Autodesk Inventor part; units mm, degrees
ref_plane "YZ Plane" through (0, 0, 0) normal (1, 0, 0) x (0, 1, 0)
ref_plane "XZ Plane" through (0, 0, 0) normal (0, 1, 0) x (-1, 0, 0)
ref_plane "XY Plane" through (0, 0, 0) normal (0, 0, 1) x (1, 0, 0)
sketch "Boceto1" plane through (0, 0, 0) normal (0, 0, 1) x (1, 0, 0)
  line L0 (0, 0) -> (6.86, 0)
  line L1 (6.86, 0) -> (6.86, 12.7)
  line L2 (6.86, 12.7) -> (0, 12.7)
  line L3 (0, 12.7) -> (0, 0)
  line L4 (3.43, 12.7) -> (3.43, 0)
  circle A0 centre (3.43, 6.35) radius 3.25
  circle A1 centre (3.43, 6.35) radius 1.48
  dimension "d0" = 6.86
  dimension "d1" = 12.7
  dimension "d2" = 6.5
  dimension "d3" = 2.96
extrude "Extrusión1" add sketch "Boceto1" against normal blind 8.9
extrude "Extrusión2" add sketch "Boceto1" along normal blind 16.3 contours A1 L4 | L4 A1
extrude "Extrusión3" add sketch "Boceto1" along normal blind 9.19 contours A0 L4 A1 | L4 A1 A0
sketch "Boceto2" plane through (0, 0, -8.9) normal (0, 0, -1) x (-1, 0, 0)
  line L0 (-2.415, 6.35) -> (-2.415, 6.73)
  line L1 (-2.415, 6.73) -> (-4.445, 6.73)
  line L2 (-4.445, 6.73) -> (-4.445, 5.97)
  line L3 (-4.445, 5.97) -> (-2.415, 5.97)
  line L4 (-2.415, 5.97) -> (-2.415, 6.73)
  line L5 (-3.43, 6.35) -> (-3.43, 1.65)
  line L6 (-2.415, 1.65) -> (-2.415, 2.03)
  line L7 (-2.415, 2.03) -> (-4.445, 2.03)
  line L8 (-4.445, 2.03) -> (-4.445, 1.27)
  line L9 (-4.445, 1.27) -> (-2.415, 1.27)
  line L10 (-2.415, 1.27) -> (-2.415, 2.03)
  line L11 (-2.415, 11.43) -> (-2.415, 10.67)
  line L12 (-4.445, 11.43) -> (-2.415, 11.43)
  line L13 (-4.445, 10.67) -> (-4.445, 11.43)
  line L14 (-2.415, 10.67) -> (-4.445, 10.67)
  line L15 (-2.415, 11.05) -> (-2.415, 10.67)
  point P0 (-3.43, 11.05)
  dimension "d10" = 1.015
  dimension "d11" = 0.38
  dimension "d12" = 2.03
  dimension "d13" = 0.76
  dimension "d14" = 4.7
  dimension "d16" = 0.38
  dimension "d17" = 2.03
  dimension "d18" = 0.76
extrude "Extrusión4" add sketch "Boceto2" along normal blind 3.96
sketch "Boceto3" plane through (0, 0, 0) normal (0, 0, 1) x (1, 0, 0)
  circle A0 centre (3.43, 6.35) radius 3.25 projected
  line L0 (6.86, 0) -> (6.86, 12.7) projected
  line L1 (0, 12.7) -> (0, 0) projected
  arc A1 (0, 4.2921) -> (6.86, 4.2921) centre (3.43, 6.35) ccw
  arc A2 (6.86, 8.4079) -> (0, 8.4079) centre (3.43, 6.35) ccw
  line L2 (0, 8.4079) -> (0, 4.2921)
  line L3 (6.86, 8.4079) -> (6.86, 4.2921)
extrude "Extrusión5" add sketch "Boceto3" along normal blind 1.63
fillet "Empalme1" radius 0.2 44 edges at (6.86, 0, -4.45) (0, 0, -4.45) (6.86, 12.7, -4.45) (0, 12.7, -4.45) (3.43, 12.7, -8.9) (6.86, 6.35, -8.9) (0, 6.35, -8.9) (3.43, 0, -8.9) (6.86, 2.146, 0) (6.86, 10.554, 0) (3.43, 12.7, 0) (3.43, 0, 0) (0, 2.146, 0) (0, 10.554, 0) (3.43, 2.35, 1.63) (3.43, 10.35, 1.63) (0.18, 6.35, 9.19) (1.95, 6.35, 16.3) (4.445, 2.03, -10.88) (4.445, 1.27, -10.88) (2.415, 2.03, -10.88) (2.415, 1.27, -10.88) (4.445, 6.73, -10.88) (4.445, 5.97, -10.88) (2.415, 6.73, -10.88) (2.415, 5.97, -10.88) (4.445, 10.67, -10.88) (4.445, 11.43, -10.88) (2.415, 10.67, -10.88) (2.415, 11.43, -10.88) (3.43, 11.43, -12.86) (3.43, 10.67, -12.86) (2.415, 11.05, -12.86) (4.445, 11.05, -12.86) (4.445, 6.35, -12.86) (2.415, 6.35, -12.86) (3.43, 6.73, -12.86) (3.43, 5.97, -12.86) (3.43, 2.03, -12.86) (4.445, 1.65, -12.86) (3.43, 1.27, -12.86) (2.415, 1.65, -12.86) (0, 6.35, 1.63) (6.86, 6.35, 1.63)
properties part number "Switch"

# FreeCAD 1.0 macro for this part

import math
import FreeCAD as App
import Part
import Sketcher
from FreeCAD import Vector


def edges_at(feature, points):
    """Names of the edges that pass closest to the given points."""
    edges = feature.Shape.Edges
    near = lambda p: min(range(len(edges)), key=lambda i: edges[i].distToShape(Part.Vertex(*p))[0])
    return sorted({f"Edge{near(p) + 1}" for p in points})

doc = App.newDocument("Part")
body = doc.addObject("PartDesign::Body", "Body")

sketch1 = doc.addObject("Sketcher::SketchObject", "Sketch")
body.addObject(sketch1)
sketch1.AttachmentSupport = (doc.XY_Plane, [""])
sketch1.MapMode = "FlatFace"
sketch1.addGeometry(Part.LineSegment(Vector(0, 13, 0), Vector(0, 0, 0)), False)
sketch1.addGeometry(Part.LineSegment(Vector(0, 0, 0), Vector(7, 0, 0)), False)
sketch1.addGeometry(Part.LineSegment(Vector(7, 0, 0), Vector(7, 13, 0)), False)
sketch1.addGeometry(Part.LineSegment(Vector(7, 13, 0), Vector(0, 13, 0)), False)
sketch1.addConstraint(Sketcher.Constraint("Coincident", 0, 2, 1, 1))
sketch1.addConstraint(Sketcher.Constraint("Coincident", 1, 2, 2, 1))
sketch1.addConstraint(Sketcher.Constraint("Coincident", 2, 2, 3, 1))
sketch1.addConstraint(Sketcher.Constraint("Coincident", 3, 2, 0, 1))
sketch1.addConstraint(Sketcher.Constraint("Vertical", 0))
sketch1.addConstraint(Sketcher.Constraint("Horizontal", 1))
sketch1.addConstraint(Sketcher.Constraint("Vertical", 2))
sketch1.addConstraint(Sketcher.Constraint("Horizontal", 3))
sketch1.addConstraint(Sketcher.Constraint("Coincident", 0, 2, -1, 1))
sketch1.addConstraint(Sketcher.Constraint("DistanceY", 0, 2, 0, 1, 12.7))
sketch1.addConstraint(Sketcher.Constraint("DistanceX", 1, 1, 1, 2, 6.86))
pad1 = doc.addObject("PartDesign::Pad", "Pad")
body.addObject(pad1)
pad1.Profile = sketch1
pad1.Length = 8.9
pad1.Reversed = True

sketch2 = doc.addObject("Sketcher::SketchObject", "Sketch001")
body.addObject(sketch2)
sketch2.AttachmentSupport = (doc.XY_Plane, [""])
sketch2.MapMode = "FlatFace"
sketch2.addGeometry(Part.Circle(Vector(3.4, 6.3, 0), Vector(0, 0, 1), 1.5), False)
sketch2.addConstraint(Sketcher.Constraint("Diameter", 0, 2.96))
sketch2.addConstraint(Sketcher.Constraint("DistanceX", -1, 1, 0, 3, 3.43))
sketch2.addConstraint(Sketcher.Constraint("DistanceY", -1, 1, 0, 3, 6.35))
pad2 = doc.addObject("PartDesign::Pad", "Pad001")
body.addObject(pad2)
pad2.Profile = sketch2
pad2.Length = 16.3

sketch3 = doc.addObject("Sketcher::SketchObject", "Sketch002")
body.addObject(sketch3)
sketch3.AttachmentSupport = (doc.XY_Plane, [""])
sketch3.MapMode = "FlatFace"
sketch3.addGeometry(Part.Circle(Vector(3.4, 6.3, 0), Vector(0, 0, 1), 3.2), False)
sketch3.addGeometry(Part.Circle(Vector(3.4, 6.3, 0), Vector(0, 0, 1), 1.5), False)
sketch3.addConstraint(Sketcher.Constraint("Coincident", 1, 3, 0, 3))
sketch3.addConstraint(Sketcher.Constraint("Diameter", 0, 6.5))
sketch3.addConstraint(Sketcher.Constraint("Diameter", 1, 2.96))
sketch3.addConstraint(Sketcher.Constraint("DistanceX", -1, 1, 0, 3, 3.43))
sketch3.addConstraint(Sketcher.Constraint("DistanceY", -1, 1, 0, 3, 6.35))
pad3 = doc.addObject("PartDesign::Pad", "Pad002")
body.addObject(pad3)
pad3.Profile = sketch3
pad3.Length = 9.19

sketch4 = doc.addObject("Sketcher::SketchObject", "Sketch003")
body.addObject(sketch4)
sketch4.AttachmentSupport = (doc.XY_Plane, [""])
sketch4.MapMode = "FlatFace"
sketch4.AttachmentOffset = App.Placement(Vector(0, 0, -8.9), App.Rotation())
sketch4.addGeometry(Part.LineSegment(Vector(2.4, 6, 0), Vector(2.4, 6.7, 0)), False)
sketch4.addGeometry(Part.LineSegment(Vector(2.4, 6.7, 0), Vector(4.4, 6.7, 0)), False)
sketch4.addGeometry(Part.LineSegment(Vector(4.4, 6.7, 0), Vector(4.4, 6, 0)), False)
sketch4.addGeometry(Part.LineSegment(Vector(4.4, 6, 0), Vector(2.4, 6, 0)), False)
sketch4.addGeometry(Part.LineSegment(Vector(2.4, 2, 0), Vector(4.4, 2, 0)), False)
sketch4.addGeometry(Part.LineSegment(Vector(4.4, 2, 0), Vector(4.4, 1.3, 0)), False)
sketch4.addGeometry(Part.LineSegment(Vector(4.4, 1.3, 0), Vector(2.4, 1.3, 0)), False)
sketch4.addGeometry(Part.LineSegment(Vector(2.4, 1.3, 0), Vector(2.4, 2, 0)), False)
sketch4.addGeometry(Part.LineSegment(Vector(2.4, 10.7, 0), Vector(2.4, 11.4, 0)), False)
sketch4.addGeometry(Part.LineSegment(Vector(2.4, 11.4, 0), Vector(4.4, 11.4, 0)), False)
sketch4.addGeometry(Part.LineSegment(Vector(4.4, 11.4, 0), Vector(4.4, 10.7, 0)), False)
sketch4.addGeometry(Part.LineSegment(Vector(4.4, 10.7, 0), Vector(2.4, 10.7, 0)), False)
sketch4.addConstraint(Sketcher.Constraint("Coincident", 0, 2, 1, 1))
sketch4.addConstraint(Sketcher.Constraint("Coincident", 1, 2, 2, 1))
sketch4.addConstraint(Sketcher.Constraint("Coincident", 2, 2, 3, 1))
sketch4.addConstraint(Sketcher.Constraint("Coincident", 3, 2, 0, 1))
sketch4.addConstraint(Sketcher.Constraint("Coincident", 4, 2, 5, 1))
sketch4.addConstraint(Sketcher.Constraint("Coincident", 5, 2, 6, 1))
sketch4.addConstraint(Sketcher.Constraint("Coincident", 6, 2, 7, 1))
sketch4.addConstraint(Sketcher.Constraint("Coincident", 7, 2, 4, 1))
sketch4.addConstraint(Sketcher.Constraint("Coincident", 8, 2, 9, 1))
sketch4.addConstraint(Sketcher.Constraint("Coincident", 9, 2, 10, 1))
sketch4.addConstraint(Sketcher.Constraint("Coincident", 10, 2, 11, 1))
sketch4.addConstraint(Sketcher.Constraint("Coincident", 11, 2, 8, 1))
sketch4.addConstraint(Sketcher.Constraint("Vertical", 0))
sketch4.addConstraint(Sketcher.Constraint("Horizontal", 1))
sketch4.addConstraint(Sketcher.Constraint("Vertical", 2))
sketch4.addConstraint(Sketcher.Constraint("Horizontal", 3))
sketch4.addConstraint(Sketcher.Constraint("Horizontal", 4))
sketch4.addConstraint(Sketcher.Constraint("Vertical", 5))
sketch4.addConstraint(Sketcher.Constraint("Horizontal", 6))
sketch4.addConstraint(Sketcher.Constraint("Vertical", 7))
sketch4.addConstraint(Sketcher.Constraint("Vertical", 8))
sketch4.addConstraint(Sketcher.Constraint("Horizontal", 9))
sketch4.addConstraint(Sketcher.Constraint("Vertical", 10))
sketch4.addConstraint(Sketcher.Constraint("Horizontal", 11))
sketch4.addConstraint(Sketcher.Constraint("Vertical", 2, 2, 4, 2))
sketch4.addConstraint(Sketcher.Constraint("Vertical", 3, 2, 6, 2))
sketch4.addConstraint(Sketcher.Constraint("Vertical", 7, 2, 8, 2))
sketch4.addConstraint(Sketcher.Constraint("Vertical", 5, 2, 9, 2))
sketch4.addConstraint(Sketcher.Constraint("Equal", 2, 5))
sketch4.addConstraint(Sketcher.Constraint("Equal", 7, 8))
sketch4.addConstraint(Sketcher.Constraint("DistanceX", 1, 1, 1, 2, 2.03))
sketch4.addConstraint(Sketcher.Constraint("DistanceY", 0, 1, 0, 2, 0.76))
sketch4.addConstraint(Sketcher.Constraint("DistanceY", 4, 2, 1, 2, 4.7))
sketch4.addConstraint(Sketcher.Constraint("DistanceY", 0, 2, 8, 2, 4.7))
sketch4.addConstraint(Sketcher.Constraint("DistanceY", -1, 1, 4, 2, 2.03))
sketch4.addConstraint(Sketcher.Constraint("DistanceX", -1, 1, 0, 2, 2.415))
pad4 = doc.addObject("PartDesign::Pad", "Pad003")
body.addObject(pad4)
pad4.Profile = sketch4
pad4.Length = 3.96
pad4.Reversed = True

sketch5 = doc.addObject("Sketcher::SketchObject", "Sketch004")
body.addObject(sketch5)
sketch5.AttachmentSupport = (doc.XY_Plane, [""])
sketch5.MapMode = "FlatFace"
sketch5.addGeometry(Part.ArcOfCircle(Part.Circle(Vector(3.4, 6.3, 0), Vector(0, 0, 1), 4), math.radians(-149), math.radians(-31)), False)
sketch5.addGeometry(Part.LineSegment(Vector(6.9, 4.3, 0), Vector(6.9, 8.4, 0)), False)
sketch5.addGeometry(Part.ArcOfCircle(Part.Circle(Vector(3.4, 6.3, 0), Vector(0, 0, 1), 4), math.radians(31), math.radians(149)), False)
sketch5.addGeometry(Part.LineSegment(Vector(0, 8.4, 0), Vector(0, 4.3, 0)), False)
sketch5.addGeometry(Part.Circle(Vector(3.4, 6.3, 0), Vector(0, 0, 1), 3.2), False)
sketch5.addConstraint(Sketcher.Constraint("Coincident", 0, 2, 1, 1))
sketch5.addConstraint(Sketcher.Constraint("Coincident", 1, 2, 2, 1))
sketch5.addConstraint(Sketcher.Constraint("Coincident", 2, 2, 3, 1))
sketch5.addConstraint(Sketcher.Constraint("Coincident", 3, 2, 0, 1))
sketch5.addConstraint(Sketcher.Constraint("Vertical", 1))
sketch5.addConstraint(Sketcher.Constraint("Vertical", 3))
sketch5.addConstraint(Sketcher.Constraint("Coincident", 2, 3, 0, 3))
sketch5.addConstraint(Sketcher.Constraint("Coincident", 4, 3, 0, 3))
sketch5.addConstraint(Sketcher.Constraint("Equal", 0, 2))
sketch5.addConstraint(Sketcher.Constraint("PointOnObject", 2, 2, -2))
sketch5.addConstraint(Sketcher.Constraint("Horizontal", 1, 2, 2, 2))
sketch5.addConstraint(Sketcher.Constraint("Radius", 0, 4.0))
sketch5.addConstraint(Sketcher.Constraint("Diameter", 4, 6.5))
sketch5.addConstraint(Sketcher.Constraint("DistanceX", -1, 1, 0, 3, 3.43))
sketch5.addConstraint(Sketcher.Constraint("DistanceY", -1, 1, 0, 3, 6.35))
pad5 = doc.addObject("PartDesign::Pad", "Pad004")
body.addObject(pad5)
pad5.Profile = sketch5
pad5.Length = 1.63
doc.recompute()

fillet = doc.addObject("PartDesign::Fillet", "Fillet")
body.addObject(fillet)
fillet.Base = (pad5, edges_at(pad5, [
    (6.86, 0, -4.45),
    (0, 0, -4.45),
    (6.86, 12.7, -4.45),
    (0, 12.7, -4.45),
    (3.43, 12.7, -8.9),
    (6.86, 6.35, -8.9),
    (0, 6.35, -8.9),
    (3.43, 0, -8.9),
    (6.86, 2.146, 0),
    (6.86, 10.554, 0),
    (3.43, 12.7, 0),
    (3.43, 0, 0),
    (0, 2.146, 0),
    (0, 10.554, 0),
    (3.43, 2.35, 1.63),
    (3.43, 10.35, 1.63),
    (0.18, 6.35, 9.19),
    (1.95, 6.35, 16.3),
    (4.445, 2.03, -10.88),
    (4.445, 1.27, -10.88),
    (2.415, 2.03, -10.88),
    (2.415, 1.27, -10.88),
    (4.445, 6.73, -10.88),
    (4.445, 5.97, -10.88),
    (2.415, 6.73, -10.88),
    (2.415, 5.97, -10.88),
    (4.445, 10.67, -10.88),
    (4.445, 11.43, -10.88),
    (2.415, 10.67, -10.88),
    (2.415, 11.43, -10.88),
    (3.43, 11.43, -12.86),
    (3.43, 10.67, -12.86),
    (2.415, 11.05, -12.86),
    (4.445, 11.05, -12.86),
    (4.445, 6.35, -12.86),
    (2.415, 6.35, -12.86),
    (3.43, 6.73, -12.86),
    (3.43, 5.97, -12.86),
    (3.43, 2.03, -12.86),
    (4.445, 1.65, -12.86),
    (3.43, 1.27, -12.86),
    (2.415, 1.65, -12.86),
    (0, 6.35, 1.63),
    (6.86, 6.35, 1.63),
]))
fillet.Radius = 0.2

doc.recompute()
